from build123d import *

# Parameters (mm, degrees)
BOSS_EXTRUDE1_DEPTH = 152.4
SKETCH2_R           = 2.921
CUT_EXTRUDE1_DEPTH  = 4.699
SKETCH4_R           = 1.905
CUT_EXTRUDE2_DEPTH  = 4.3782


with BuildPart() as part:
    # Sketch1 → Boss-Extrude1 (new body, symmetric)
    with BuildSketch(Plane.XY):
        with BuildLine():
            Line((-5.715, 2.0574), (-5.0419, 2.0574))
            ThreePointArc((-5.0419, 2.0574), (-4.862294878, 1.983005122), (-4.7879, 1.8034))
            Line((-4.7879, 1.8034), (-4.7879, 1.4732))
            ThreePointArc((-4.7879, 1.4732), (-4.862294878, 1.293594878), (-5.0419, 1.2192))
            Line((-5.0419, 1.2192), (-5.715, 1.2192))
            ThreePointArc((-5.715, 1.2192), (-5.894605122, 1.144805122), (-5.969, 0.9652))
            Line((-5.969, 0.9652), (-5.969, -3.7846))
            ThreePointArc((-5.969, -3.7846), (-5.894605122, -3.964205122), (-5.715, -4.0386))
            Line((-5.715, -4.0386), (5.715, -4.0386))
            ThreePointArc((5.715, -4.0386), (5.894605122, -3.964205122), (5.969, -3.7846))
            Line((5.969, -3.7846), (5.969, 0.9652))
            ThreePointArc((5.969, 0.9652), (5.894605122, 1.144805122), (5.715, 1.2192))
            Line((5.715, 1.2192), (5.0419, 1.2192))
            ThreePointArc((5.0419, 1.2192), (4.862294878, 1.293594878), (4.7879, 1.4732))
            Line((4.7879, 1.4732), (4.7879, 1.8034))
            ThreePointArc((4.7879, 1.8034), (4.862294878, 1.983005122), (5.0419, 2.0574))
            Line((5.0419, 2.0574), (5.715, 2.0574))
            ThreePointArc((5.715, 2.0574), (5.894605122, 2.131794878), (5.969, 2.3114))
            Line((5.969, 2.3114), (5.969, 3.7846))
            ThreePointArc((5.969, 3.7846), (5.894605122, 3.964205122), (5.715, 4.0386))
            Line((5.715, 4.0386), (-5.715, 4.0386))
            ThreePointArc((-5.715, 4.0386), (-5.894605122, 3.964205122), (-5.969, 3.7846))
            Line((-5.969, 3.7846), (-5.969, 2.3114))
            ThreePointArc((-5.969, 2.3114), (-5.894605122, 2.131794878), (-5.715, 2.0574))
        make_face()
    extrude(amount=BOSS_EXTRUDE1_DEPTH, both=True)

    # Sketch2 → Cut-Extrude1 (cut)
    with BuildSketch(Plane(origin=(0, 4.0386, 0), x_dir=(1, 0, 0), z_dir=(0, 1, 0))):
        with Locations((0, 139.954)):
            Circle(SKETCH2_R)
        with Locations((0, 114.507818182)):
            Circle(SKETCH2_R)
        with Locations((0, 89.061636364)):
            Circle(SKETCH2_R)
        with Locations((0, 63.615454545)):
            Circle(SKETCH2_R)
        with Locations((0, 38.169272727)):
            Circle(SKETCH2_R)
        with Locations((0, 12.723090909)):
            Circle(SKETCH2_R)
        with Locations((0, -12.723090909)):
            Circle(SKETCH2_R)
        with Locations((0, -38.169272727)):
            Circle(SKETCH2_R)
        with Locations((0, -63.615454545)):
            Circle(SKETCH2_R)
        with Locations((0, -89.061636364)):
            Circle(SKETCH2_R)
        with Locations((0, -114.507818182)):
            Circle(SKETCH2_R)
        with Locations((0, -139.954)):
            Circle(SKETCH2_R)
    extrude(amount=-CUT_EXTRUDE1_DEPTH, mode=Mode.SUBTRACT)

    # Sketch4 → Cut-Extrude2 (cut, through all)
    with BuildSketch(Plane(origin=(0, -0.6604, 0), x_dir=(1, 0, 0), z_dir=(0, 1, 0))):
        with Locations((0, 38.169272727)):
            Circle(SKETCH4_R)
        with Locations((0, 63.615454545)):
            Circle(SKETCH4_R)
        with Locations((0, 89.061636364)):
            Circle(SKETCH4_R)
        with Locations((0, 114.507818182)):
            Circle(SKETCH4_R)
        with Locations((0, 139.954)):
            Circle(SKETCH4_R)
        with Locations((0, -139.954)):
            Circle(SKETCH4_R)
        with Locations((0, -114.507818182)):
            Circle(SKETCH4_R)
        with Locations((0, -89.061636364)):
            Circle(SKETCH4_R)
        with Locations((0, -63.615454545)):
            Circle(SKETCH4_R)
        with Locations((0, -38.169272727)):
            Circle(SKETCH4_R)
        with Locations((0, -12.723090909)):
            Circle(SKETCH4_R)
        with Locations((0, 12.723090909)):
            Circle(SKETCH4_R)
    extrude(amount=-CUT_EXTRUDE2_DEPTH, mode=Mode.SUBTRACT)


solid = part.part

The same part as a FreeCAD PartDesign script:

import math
import FreeCAD as App
import Part
import Sketcher
Q = App.Units.Quantity

doc = App.newDocument("Part")
params = doc.addObject("Spreadsheet::Sheet", "Params")
for row, (alias, value) in enumerate([
    ("sketch1_radius", "0.01 in"),
    ("sketch1_width", "0.45 in"),
    ("sketch1_height", "0.013 in"),
    ("sketch1_height2", "0.187 in"),
    ("sketch1_height3", "0.058 in"),
    ("pad1_length", "12 in"),
    ("sketch2_diameter", "0.23 in"),
    ("pocket1_length", "0.185 in"),
    ("sketch3_diameter", "0.15 in"),
], start=1):
    params.set(f"A{row}", alias)
    params.set(f"B{row}", "=" + value)
    params.setAlias(f"B{row}", alias)

body = doc.addObject("PartDesign::Body", "Body")

sketch1 = doc.addObject("Sketcher::SketchObject", "Sketch")
body.addObject(sketch1)
sketch1.AttachmentSupport = (doc.XY_Plane, [""])
sketch1.MapMode = "FlatFace"
sketch1.addGeometry([
    Part.LineSegment(App.Vector(-5.71, 2.06, 0), App.Vector(-5.04, 2.06, 0)),
    Part.ArcOfCircle(Part.Circle(App.Vector(-5.04, 1.8, 0), App.Vector(0, 0, 1), 0.25), math.radians(0), math.radians(90)),
    Part.LineSegment(App.Vector(-4.79, 1.8, 0), App.Vector(-4.79, 1.47, 0)),
    Part.ArcOfCircle(Part.Circle(App.Vector(-5.04, 1.47, 0), App.Vector(0, 0, 1), 0.25), math.radians(-90), math.radians(0)),
    Part.LineSegment(App.Vector(-5.04, 1.22, 0), App.Vector(-5.71, 1.22, 0)),
    Part.ArcOfCircle(Part.Circle(App.Vector(-5.71, 0.97, 0), App.Vector(0, 0, 1), 0.25), math.radians(90), math.radians(180)),
    Part.LineSegment(App.Vector(-5.97, 0.97, 0), App.Vector(-5.97, -3.78, 0)),
    Part.ArcOfCircle(Part.Circle(App.Vector(-5.71, -3.78, 0), App.Vector(0, 0, 1), 0.25), math.radians(-180), math.radians(-90)),
    Part.LineSegment(App.Vector(-5.71, -4.04, 0), App.Vector(5.71, -4.04, 0)),
    Part.ArcOfCircle(Part.Circle(App.Vector(5.71, -3.78, 0), App.Vector(0, 0, 1), 0.25), math.radians(-90), math.radians(0)),
    Part.LineSegment(App.Vector(5.97, -3.78, 0), App.Vector(5.97, 0.97, 0)),
    Part.ArcOfCircle(Part.Circle(App.Vector(5.71, 0.97, 0), App.Vector(0, 0, 1), 0.25), math.radians(0), math.radians(90)),
    Part.LineSegment(App.Vector(5.71, 1.22, 0), App.Vector(5.04, 1.22, 0)),
    Part.ArcOfCircle(Part.Circle(App.Vector(5.04, 1.47, 0), App.Vector(0, 0, 1), 0.25), math.radians(-180), math.radians(-90)),
    Part.LineSegment(App.Vector(4.79, 1.47, 0), App.Vector(4.79, 1.8, 0)),
    Part.ArcOfCircle(Part.Circle(App.Vector(5.04, 1.8, 0), App.Vector(0, 0, 1), 0.25), math.radians(90), math.radians(180)),
    Part.LineSegment(App.Vector(5.04, 2.06, 0), App.Vector(5.71, 2.06, 0)),
    Part.ArcOfCircle(Part.Circle(App.Vector(5.71, 2.31, 0), App.Vector(0, 0, 1), 0.25), math.radians(-90), math.radians(0)),
    Part.LineSegment(App.Vector(5.97, 2.31, 0), App.Vector(5.97, 3.78, 0)),
    Part.ArcOfCircle(Part.Circle(App.Vector(5.71, 3.78, 0), App.Vector(0, 0, 1), 0.25), math.radians(0), math.radians(90)),
    Part.LineSegment(App.Vector(5.71, 4.04, 0), App.Vector(-5.71, 4.04, 0)),
    Part.ArcOfCircle(Part.Circle(App.Vector(-5.71, 3.78, 0), App.Vector(0, 0, 1), 0.25), math.radians(90), math.radians(180)),
    Part.LineSegment(App.Vector(-5.97, 3.78, 0), App.Vector(-5.97, 2.31, 0)),
    Part.ArcOfCircle(Part.Circle(App.Vector(-5.71, 2.31, 0), App.Vector(0, 0, 1), 0.25), math.radians(-180), math.radians(-90)),
], False)
sketch1.addConstraint([
    Sketcher.Constraint("Tangent", 0, 2, 1, 2),
    Sketcher.Constraint("Tangent", 1, 1, 2, 1),
    Sketcher.Constraint("Tangent", 2, 2, 3, 2),
    Sketcher.Constraint("Tangent", 3, 1, 4, 1),
    Sketcher.Constraint("Tangent", 4, 2, 5, 1),
    Sketcher.Constraint("Tangent", 5, 2, 6, 1),
    Sketcher.Constraint("Tangent", 6, 2, 7, 1),
    Sketcher.Constraint("Tangent", 7, 2, 8, 1),
    Sketcher.Constraint("Tangent", 8, 2, 9, 1),
    Sketcher.Constraint("Tangent", 9, 2, 10, 1),
    Sketcher.Constraint("Tangent", 10, 2, 11, 1),
    Sketcher.Constraint("Tangent", 11, 2, 12, 1),
    Sketcher.Constraint("Tangent", 12, 2, 13, 2),
    Sketcher.Constraint("Tangent", 13, 1, 14, 1),
    Sketcher.Constraint("Tangent", 14, 2, 15, 2),
    Sketcher.Constraint("Tangent", 15, 1, 16, 1),
    Sketcher.Constraint("Tangent", 16, 2, 17, 1),
    Sketcher.Constraint("Tangent", 17, 2, 18, 1),
    Sketcher.Constraint("Tangent", 18, 2, 19, 1),
    Sketcher.Constraint("Tangent", 19, 2, 20, 1),
    Sketcher.Constraint("Tangent", 20, 2, 21, 1),
    Sketcher.Constraint("Tangent", 21, 2, 22, 1),
    Sketcher.Constraint("Tangent", 22, 2, 23, 1),
    Sketcher.Constraint("Tangent", 23, 2, 0, 1),
    Sketcher.Constraint("Horizontal", 0),
    Sketcher.Constraint("Vertical", 2),
    Sketcher.Constraint("Horizontal", 4),
    Sketcher.Constraint("Vertical", 6),
    Sketcher.Constraint("Horizontal", 8),
    Sketcher.Constraint("Vertical", 10),
    Sketcher.Constraint("Horizontal", 12),
    Sketcher.Constraint("Vertical", 14),
    Sketcher.Constraint("Horizontal", 16),
    Sketcher.Constraint("Vertical", 18),
    Sketcher.Constraint("Horizontal", 20),
    Sketcher.Constraint("Vertical", 22),
    Sketcher.Constraint("Equal", 1, 3),
    Sketcher.Constraint("Equal", 3, 5),
    Sketcher.Constraint("Equal", 5, 7),
    Sketcher.Constraint("Equal", 7, 9),
    Sketcher.Constraint("Equal", 9, 11),
    Sketcher.Constraint("Equal", 11, 13),
    Sketcher.Constraint("Equal", 13, 15),
    Sketcher.Constraint("Equal", 15, 17),
    Sketcher.Constraint("Equal", 17, 19),
    Sketcher.Constraint("Equal", 19, 21),
    Sketcher.Constraint("Equal", 21, 23),
    Sketcher.Constraint("Symmetric", 7, 3, 19, 3, -1, 1),
    Sketcher.Constraint("Symmetric", 5, 3, 11, 3, -2),
    Sketcher.Constraint("Symmetric", 1, 3, 15, 3, -2),
    Sketcher.Constraint("Vertical", 7, 3, 21, 3),
    Sketcher.Constraint("Radius", 1, Q("0.01 in")),
    Sketcher.Constraint("DistanceX", 8, 1, 8, 2, Q("0.45 in")),
    Sketcher.Constraint("DistanceY", 2, 2, 2, 1, Q("0.013 in")),
    Sketcher.Constraint("DistanceY", 6, 2, 6, 1, Q("0.187 in")),
    Sketcher.Constraint("DistanceY", 18, 1, 18, 2, Q("0.058 in")),
    Sketcher.Constraint("DistanceX", 0, 1, 0, 2, Q("0.0265 in")),
])
sketch1.setExpression("Constraints[51]", "Params.sketch1_radius")
sketch1.setExpression("Constraints[52]", "Params.sketch1_width")
sketch1.setExpression("Constraints[53]", "Params.sketch1_height")
sketch1.setExpression("Constraints[54]", "Params.sketch1_height2")
sketch1.setExpression("Constraints[55]", "Params.sketch1_height3")
pad1 = doc.addObject("PartDesign::Pad", "Pad")
body.addObject(pad1)
pad1.Profile = sketch1
pad1.setExpression("Length", "Params.pad1_length")
pad1.Midplane = True

sketch2 = doc.addObject("Sketcher::SketchObject", "Sketch001")
body.addObject(sketch2)
sketch2.AttachmentSupport = (doc.XZ_Plane, [""])
sketch2.MapMode = "FlatFace"
sketch2.AttachmentOffset = App.Placement(App.Vector(0, 0, -0.159 * 25.4), App.Rotation())
sketch2.addGeometry([
    Part.Circle(App.Vector(0, -140, 0), App.Vector(0, 0, 1), 2.9),
    Part.Circle(App.Vector(0, -114.5, 0), App.Vector(0, 0, 1), 2.9),
    Part.Circle(App.Vector(0, -89.1, 0), App.Vector(0, 0, 1), 2.9),
    Part.Circle(App.Vector(0, -63.6, 0), App.Vector(0, 0, 1), 2.9),
    Part.Circle(App.Vector(0, -38.2, 0), App.Vector(0, 0, 1), 2.9),
    Part.Circle(App.Vector(0, -12.7, 0), App.Vector(0, 0, 1), 2.9),
    Part.Circle(App.Vector(0, 12.7, 0), App.Vector(0, 0, 1), 2.9),
    Part.Circle(App.Vector(0, 38.2, 0), App.Vector(0, 0, 1), 2.9),
    Part.Circle(App.Vector(0, 63.6, 0), App.Vector(0, 0, 1), 2.9),
    Part.Circle(App.Vector(0, 89.1, 0), App.Vector(0, 0, 1), 2.9),
    Part.Circle(App.Vector(0, 114.5, 0), App.Vector(0, 0, 1), 2.9),
    Part.Circle(App.Vector(0, 140, 0), App.Vector(0, 0, 1), 2.9),
], False)
sketch2.addConstraint([
    Sketcher.Constraint("Equal", 0, 1),
    Sketcher.Constraint("Equal", 1, 2),
    Sketcher.Constraint("Equal", 2, 3),
    Sketcher.Constraint("Equal", 3, 4),
    Sketcher.Constraint("Equal", 4, 5),
    Sketcher.Constraint("Equal", 5, 6),
    Sketcher.Constraint("Equal", 6, 7),
    Sketcher.Constraint("Equal", 7, 8),
    Sketcher.Constraint("Equal", 8, 9),
    Sketcher.Constraint("Equal", 9, 10),
    Sketcher.Constraint("Equal", 10, 11),
    Sketcher.Constraint("Symmetric", 5, 3, 6, 3, -1, 1),
    Sketcher.Constraint("Symmetric", 4, 3, 7, 3, -1, 1),
    Sketcher.Constraint("Symmetric", 3, 3, 8, 3, -1, 1),
    Sketcher.Constraint("Symmetric", 2, 3, 9, 3, -1, 1),
    Sketcher.Constraint("Symmetric", 1, 3, 10, 3, -1, 1),
    Sketcher.Constraint("Symmetric", 0, 3, 11, 3, -1, 1),
    Sketcher.Constraint("PointOnObject", 0, 3, -2),
    Sketcher.Constraint("PointOnObject", 1, 3, -2),
    Sketcher.Constraint("PointOnObject", 2, 3, -2),
    Sketcher.Constraint("PointOnObject", 3, 3, -2),
    Sketcher.Constraint("PointOnObject", 4, 3, -2),
    Sketcher.Constraint("PointOnObject", 5, 3, -2),
    Sketcher.Constraint("Diameter", 0, Q("0.23 in")),
    Sketcher.Constraint("DistanceY", 0, 3, -1, 1, Q("5.51 in")),
    Sketcher.Constraint("DistanceY", 1, 3, -1, 1, 114.507818),
    Sketcher.Constraint("DistanceY", 5, 3, -1, 1, 12.723091),
    Sketcher.Constraint("DistanceY", 1, 3, 2, 3, 25.446182),
    Sketcher.Constraint("DistanceY", 2, 3, 3, 3, 25.446182),
    Sketcher.Constraint("DistanceY", 3, 3, 4, 3, 25.446182),
])
sketch2.setExpression("Constraints[23]", "Params.sketch2_diameter")
pocket1 = doc.addObject("PartDesign::Pocket", "Pocket")
body.addObject(pocket1)
pocket1.Profile = sketch2
pocket1.setExpression("Length", "Params.pocket1_length")
pocket1.Reversed = True

sketch3 = doc.addObject("Sketcher::SketchObject", "Sketch002")
body.addObject(sketch3)
sketch3.AttachmentSupport = (doc.XZ_Plane, [""])
sketch3.MapMode = "FlatFace"
sketch3.AttachmentOffset = App.Placement(App.Vector(0, 0, 0.026 * 25.4), App.Rotation())
sketch3.addGeometry([
    Part.Circle(App.Vector(0, -38.2, 0), App.Vector(0, 0, 1), 1.9),
    Part.Circle(App.Vector(0, -63.6, 0), App.Vector(0, 0, 1), 1.9),
    Part.Circle(App.Vector(0, -89.1, 0), App.Vector(0, 0, 1), 1.9),
    Part.Circle(App.Vector(0, -114.5, 0), App.Vector(0, 0, 1), 1.9),
    Part.Circle(App.Vector(0, -140, 0), App.Vector(0, 0, 1), 1.9),
    Part.Circle(App.Vector(0, 140, 0), App.Vector(0, 0, 1), 1.9),
    Part.Circle(App.Vector(0, 114.5, 0), App.Vector(0, 0, 1), 1.9),
    Part.Circle(App.Vector(0, 89.1, 0), App.Vector(0, 0, 1), 1.9),
    Part.Circle(App.Vector(0, 63.6, 0), App.Vector(0, 0, 1), 1.9),
    Part.Circle(App.Vector(0, 38.2, 0), App.Vector(0, 0, 1), 1.9),
    Part.Circle(App.Vector(0, 12.7, 0), App.Vector(0, 0, 1), 1.9),
    Part.Circle(App.Vector(0, -12.7, 0), App.Vector(0, 0, 1), 1.9),
], False)
sketch3.addConstraint([
    Sketcher.Constraint("Equal", 0, 1),
    Sketcher.Constraint("Equal", 1, 2),
    Sketcher.Constraint("Equal", 2, 3),
    Sketcher.Constraint("Equal", 3, 4),
    Sketcher.Constraint("Equal", 4, 5),
    Sketcher.Constraint("Equal", 5, 6),
    Sketcher.Constraint("Equal", 6, 7),
    Sketcher.Constraint("Equal", 7, 8),
    Sketcher.Constraint("Equal", 8, 9),
    Sketcher.Constraint("Equal", 9, 10),
    Sketcher.Constraint("Equal", 10, 11),
    Sketcher.Constraint("Symmetric", 4, 3, 5, 3, -1, 1),
    Sketcher.Constraint("Symmetric", 3, 3, 6, 3, -1, 1),
    Sketcher.Constraint("Symmetric", 2, 3, 7, 3, -1, 1),
    Sketcher.Constraint("Symmetric", 1, 3, 8, 3, -1, 1),
    Sketcher.Constraint("Symmetric", 0, 3, 9, 3, -1, 1),
    Sketcher.Constraint("Symmetric", 10, 3, 11, 3, -1, 1),
    Sketcher.Constraint("PointOnObject", 0, 3, -2),
    Sketcher.Constraint("PointOnObject", 1, 3, -2),
    Sketcher.Constraint("PointOnObject", 2, 3, -2),
    Sketcher.Constraint("PointOnObject", 3, 3, -2),
    Sketcher.Constraint("PointOnObject", 4, 3, -2),
    Sketcher.Constraint("PointOnObject", 10, 3, -2),
    Sketcher.Constraint("Diameter", 0, Q("0.15 in")),
    Sketcher.Constraint("DistanceY", 4, 3, -1, 1, Q("5.51 in")),
    Sketcher.Constraint("DistanceY", 3, 3, -1, 1, 114.507818),
    Sketcher.Constraint("DistanceY", -1, 1, 10, 3, 12.723091),
    Sketcher.Constraint("DistanceY", 1, 3, 0, 3, 25.446182),
    Sketcher.Constraint("DistanceY", 2, 3, 1, 3, 25.446182),
    Sketcher.Constraint("DistanceY", 3, 3, 2, 3, 25.446182),
])
sketch3.setExpression("Constraints[23]", "Params.sketch3_diameter")
pocket2 = doc.addObject("PartDesign::Pocket", "Pocket001")
body.addObject(pocket2)
pocket2.Profile = sketch3
pocket2.Type = "ThroughAll"
pocket2.Reversed = True

doc.recompute()
